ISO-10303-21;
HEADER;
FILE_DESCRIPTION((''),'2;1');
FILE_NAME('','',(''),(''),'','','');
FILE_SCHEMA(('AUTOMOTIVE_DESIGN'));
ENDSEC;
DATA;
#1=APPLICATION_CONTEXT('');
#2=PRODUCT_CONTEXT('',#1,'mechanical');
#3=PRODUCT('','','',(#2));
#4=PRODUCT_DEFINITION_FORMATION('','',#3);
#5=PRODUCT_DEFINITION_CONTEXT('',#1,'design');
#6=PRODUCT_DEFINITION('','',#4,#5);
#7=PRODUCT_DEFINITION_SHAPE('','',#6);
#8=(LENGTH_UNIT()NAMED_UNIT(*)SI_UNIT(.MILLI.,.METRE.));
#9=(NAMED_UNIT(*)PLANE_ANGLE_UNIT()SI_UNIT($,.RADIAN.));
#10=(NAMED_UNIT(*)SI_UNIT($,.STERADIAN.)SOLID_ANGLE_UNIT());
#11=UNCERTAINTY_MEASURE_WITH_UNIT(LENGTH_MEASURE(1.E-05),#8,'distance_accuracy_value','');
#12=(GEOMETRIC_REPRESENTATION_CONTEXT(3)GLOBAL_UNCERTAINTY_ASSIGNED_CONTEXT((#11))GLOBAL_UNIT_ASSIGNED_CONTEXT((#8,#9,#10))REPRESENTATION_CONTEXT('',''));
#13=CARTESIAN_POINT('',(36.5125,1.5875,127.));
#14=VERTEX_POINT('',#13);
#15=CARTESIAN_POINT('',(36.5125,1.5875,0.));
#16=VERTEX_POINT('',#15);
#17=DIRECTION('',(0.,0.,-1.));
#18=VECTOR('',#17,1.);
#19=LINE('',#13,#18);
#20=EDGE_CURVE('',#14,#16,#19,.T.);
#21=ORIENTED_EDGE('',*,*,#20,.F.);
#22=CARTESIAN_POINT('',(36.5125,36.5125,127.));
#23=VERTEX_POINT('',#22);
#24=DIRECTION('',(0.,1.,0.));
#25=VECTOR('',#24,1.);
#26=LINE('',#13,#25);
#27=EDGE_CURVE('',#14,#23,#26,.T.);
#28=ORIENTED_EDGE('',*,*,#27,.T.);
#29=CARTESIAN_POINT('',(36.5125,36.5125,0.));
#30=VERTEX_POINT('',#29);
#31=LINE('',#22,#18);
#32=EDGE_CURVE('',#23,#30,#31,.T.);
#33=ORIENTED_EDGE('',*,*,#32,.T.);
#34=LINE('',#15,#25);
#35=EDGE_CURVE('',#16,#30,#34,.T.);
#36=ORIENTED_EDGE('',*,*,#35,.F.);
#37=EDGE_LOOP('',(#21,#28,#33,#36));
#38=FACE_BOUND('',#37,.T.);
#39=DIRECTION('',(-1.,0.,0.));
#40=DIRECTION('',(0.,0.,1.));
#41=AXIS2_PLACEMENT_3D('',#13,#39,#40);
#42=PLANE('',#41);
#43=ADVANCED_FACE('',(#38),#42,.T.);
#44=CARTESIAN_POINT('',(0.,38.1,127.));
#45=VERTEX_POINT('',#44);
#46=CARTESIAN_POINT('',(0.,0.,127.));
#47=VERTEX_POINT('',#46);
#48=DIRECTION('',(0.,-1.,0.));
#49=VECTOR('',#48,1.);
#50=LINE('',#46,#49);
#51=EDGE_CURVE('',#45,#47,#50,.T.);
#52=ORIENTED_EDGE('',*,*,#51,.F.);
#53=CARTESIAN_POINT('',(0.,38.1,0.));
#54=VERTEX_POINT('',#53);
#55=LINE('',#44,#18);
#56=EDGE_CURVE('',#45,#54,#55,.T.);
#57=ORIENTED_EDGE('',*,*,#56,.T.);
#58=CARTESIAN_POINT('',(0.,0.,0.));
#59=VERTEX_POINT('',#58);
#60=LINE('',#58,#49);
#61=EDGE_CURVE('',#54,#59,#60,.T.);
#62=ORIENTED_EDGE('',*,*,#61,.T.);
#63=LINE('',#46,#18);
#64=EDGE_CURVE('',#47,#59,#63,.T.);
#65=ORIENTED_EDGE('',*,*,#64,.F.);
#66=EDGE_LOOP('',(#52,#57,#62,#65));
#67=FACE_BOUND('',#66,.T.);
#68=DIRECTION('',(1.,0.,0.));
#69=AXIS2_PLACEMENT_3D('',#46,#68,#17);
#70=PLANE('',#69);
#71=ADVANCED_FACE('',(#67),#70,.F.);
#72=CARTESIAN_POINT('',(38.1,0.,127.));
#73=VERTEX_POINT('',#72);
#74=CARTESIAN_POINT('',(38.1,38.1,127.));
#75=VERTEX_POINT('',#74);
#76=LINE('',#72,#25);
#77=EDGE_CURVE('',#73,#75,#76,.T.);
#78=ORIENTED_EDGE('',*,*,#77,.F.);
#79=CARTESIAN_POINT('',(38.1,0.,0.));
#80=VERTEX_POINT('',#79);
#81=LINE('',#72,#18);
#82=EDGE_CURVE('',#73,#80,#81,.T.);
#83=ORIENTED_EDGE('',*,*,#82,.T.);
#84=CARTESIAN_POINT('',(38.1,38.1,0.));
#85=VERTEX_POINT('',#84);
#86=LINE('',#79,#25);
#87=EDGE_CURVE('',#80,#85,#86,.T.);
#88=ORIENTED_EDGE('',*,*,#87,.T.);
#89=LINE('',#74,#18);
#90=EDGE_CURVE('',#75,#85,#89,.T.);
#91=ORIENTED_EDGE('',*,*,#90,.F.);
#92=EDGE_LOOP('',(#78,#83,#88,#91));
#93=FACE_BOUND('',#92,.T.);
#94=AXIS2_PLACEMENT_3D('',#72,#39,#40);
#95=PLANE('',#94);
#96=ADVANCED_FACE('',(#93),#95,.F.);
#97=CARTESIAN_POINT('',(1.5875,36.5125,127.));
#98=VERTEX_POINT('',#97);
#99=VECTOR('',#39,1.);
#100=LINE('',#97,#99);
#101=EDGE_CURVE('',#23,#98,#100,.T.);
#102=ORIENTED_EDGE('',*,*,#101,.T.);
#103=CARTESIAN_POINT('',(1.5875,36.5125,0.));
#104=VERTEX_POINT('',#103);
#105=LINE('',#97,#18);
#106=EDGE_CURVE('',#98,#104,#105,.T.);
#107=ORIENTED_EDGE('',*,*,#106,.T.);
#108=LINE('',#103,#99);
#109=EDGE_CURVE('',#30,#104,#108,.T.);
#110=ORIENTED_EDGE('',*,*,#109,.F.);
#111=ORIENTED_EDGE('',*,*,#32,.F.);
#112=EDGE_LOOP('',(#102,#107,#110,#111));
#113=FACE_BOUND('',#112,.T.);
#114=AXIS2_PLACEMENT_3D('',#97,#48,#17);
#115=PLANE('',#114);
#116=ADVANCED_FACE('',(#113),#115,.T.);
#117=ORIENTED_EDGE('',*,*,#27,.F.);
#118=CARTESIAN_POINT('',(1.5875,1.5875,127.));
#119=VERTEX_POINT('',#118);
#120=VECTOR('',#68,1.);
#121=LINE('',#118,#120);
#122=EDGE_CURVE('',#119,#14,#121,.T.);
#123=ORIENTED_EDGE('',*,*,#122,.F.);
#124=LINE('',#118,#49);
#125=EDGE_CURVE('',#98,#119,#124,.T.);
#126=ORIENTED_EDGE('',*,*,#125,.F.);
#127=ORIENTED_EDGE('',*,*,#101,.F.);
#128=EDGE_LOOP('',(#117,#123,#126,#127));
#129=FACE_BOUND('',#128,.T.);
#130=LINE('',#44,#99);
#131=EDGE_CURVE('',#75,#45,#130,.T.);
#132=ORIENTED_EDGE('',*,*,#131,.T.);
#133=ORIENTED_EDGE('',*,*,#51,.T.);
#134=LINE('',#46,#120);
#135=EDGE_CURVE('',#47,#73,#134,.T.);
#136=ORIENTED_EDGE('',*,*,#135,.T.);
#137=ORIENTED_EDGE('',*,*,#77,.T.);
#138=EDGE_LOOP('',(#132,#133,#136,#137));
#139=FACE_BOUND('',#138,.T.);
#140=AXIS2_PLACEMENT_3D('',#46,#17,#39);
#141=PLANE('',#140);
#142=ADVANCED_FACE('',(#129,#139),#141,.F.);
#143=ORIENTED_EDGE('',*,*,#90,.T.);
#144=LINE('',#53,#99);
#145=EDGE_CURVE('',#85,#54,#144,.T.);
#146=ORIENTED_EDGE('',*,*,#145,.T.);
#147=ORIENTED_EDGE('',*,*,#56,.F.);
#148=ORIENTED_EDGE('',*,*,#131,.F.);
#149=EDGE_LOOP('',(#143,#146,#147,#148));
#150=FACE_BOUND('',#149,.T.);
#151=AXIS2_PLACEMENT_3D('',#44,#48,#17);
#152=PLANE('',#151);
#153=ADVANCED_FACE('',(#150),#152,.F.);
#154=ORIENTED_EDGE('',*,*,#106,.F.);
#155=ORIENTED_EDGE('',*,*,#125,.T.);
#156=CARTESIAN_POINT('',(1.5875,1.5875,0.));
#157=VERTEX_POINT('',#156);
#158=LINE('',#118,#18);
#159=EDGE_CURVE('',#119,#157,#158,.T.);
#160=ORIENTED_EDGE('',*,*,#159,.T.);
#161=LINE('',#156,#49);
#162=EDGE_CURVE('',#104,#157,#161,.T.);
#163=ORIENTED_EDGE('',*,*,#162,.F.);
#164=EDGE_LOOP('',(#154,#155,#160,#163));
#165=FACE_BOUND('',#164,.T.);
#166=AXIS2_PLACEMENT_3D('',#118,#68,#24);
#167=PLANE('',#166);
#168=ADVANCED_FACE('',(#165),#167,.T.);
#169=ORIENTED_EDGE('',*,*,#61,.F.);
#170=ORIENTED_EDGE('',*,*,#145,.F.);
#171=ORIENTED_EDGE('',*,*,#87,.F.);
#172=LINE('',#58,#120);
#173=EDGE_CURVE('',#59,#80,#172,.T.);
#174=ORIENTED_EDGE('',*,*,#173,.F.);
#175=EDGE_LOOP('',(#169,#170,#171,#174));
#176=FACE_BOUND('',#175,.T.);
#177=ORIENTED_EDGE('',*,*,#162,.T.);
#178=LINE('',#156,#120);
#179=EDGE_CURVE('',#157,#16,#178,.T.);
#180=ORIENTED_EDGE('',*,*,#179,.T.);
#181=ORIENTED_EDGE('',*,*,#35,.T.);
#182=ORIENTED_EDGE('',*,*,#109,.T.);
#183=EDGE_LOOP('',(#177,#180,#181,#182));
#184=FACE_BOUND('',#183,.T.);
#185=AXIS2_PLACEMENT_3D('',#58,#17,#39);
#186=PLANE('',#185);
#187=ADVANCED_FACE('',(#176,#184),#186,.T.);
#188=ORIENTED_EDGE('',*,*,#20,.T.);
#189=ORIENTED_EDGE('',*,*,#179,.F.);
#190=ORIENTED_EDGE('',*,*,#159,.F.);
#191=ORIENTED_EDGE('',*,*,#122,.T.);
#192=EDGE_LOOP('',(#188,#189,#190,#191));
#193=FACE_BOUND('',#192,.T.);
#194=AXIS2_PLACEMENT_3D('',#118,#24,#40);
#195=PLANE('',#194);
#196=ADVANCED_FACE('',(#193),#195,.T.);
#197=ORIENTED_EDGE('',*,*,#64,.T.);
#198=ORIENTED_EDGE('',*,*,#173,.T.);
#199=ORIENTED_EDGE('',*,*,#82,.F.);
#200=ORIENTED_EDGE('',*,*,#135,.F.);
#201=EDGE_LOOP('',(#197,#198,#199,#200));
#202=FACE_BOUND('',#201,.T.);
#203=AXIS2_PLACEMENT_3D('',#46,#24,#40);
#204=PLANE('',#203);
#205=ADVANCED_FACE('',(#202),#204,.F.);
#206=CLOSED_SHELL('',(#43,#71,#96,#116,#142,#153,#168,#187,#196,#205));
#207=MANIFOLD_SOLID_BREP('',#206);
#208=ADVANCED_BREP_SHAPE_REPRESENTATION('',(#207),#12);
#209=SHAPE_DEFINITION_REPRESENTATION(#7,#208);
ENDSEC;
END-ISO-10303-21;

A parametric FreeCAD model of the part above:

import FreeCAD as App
import Part
import Sketcher

V = App.Vector
Q = App.Units.Quantity

doc = App.newDocument("Part")
params = doc.addObject("Spreadsheet::Sheet", "Params")
for row, (alias, value) in enumerate([
    ("sketch1_width", "1.5 in"),
    ("sketch1_width2", "1.375 in"),
    ("pad1_length", "5 in"),
], start=1):
    params.set(f"A{row}", alias)
    params.set(f"B{row}", "=" + value)
    params.setAlias(f"B{row}", alias)

body = doc.addObject("PartDesign::Body", "Body")

# Sketch on XY plane
sketch1 = body.newObject("Sketcher::SketchObject", "Sketch")
sketch1.AttachmentSupport = (doc.getObject("XY_Plane"), [""])
sketch1.MapMode = "FlatFace"
sketch1.addGeometry(Part.LineSegment(V(0, 38.1, 0), V(0, 0, 0)), False)
sketch1.addGeometry(Part.LineSegment(V(0, 0, 0), V(38.1, 0, 0)), False)
sketch1.addGeometry(Part.LineSegment(V(38.1, 0, 0), V(38.1, 38.1, 0)), False)
sketch1.addGeometry(Part.LineSegment(V(38.1, 38.1, 0), V(0, 38.1, 0)), False)
sketch1.addGeometry(Part.LineSegment(V(36.5125, 1.5875, 0), V(1.5875, 1.5875, 0)), False)
sketch1.addGeometry(Part.LineSegment(V(1.5875, 1.5875, 0), V(1.5875, 36.5125, 0)), False)
sketch1.addGeometry(Part.LineSegment(V(1.5875, 36.5125, 0), V(36.5125, 36.5125, 0)), False)
sketch1.addGeometry(Part.LineSegment(V(36.5125, 36.5125, 0), V(36.5125, 1.5875, 0)), False)
sketch1.addConstraint(Sketcher.Constraint("Coincident", 0, 2, 1, 1))
sketch1.addConstraint(Sketcher.Constraint("Coincident", 1, 2, 2, 1))
sketch1.addConstraint(Sketcher.Constraint("Coincident", 2, 2, 3, 1))
sketch1.addConstraint(Sketcher.Constraint("Coincident", 3, 2, 0, 1))
sketch1.addConstraint(Sketcher.Constraint("Coincident", 4, 2, 5, 1))
sketch1.addConstraint(Sketcher.Constraint("Coincident", 5, 2, 6, 1))
sketch1.addConstraint(Sketcher.Constraint("Coincident", 6, 2, 7, 1))
sketch1.addConstraint(Sketcher.Constraint("Coincident", 7, 2, 4, 1))
sketch1.addConstraint(Sketcher.Constraint("Vertical", 0))
sketch1.addConstraint(Sketcher.Constraint("Horizontal", 1))
sketch1.addConstraint(Sketcher.Constraint("Vertical", 2))
sketch1.addConstraint(Sketcher.Constraint("Horizontal", 3))
sketch1.addConstraint(Sketcher.Constraint("Horizontal", 4))
sketch1.addConstraint(Sketcher.Constraint("Vertical", 5))
sketch1.addConstraint(Sketcher.Constraint("Horizontal", 6))
sketch1.addConstraint(Sketcher.Constraint("Vertical", 7))
sketch1.addConstraint(Sketcher.Constraint("Coincident", 0, 2, -1, 1))
sketch1.addConstraint(Sketcher.Constraint("Equal", 3, 0))
sketch1.addConstraint(Sketcher.Constraint("Equal", 6, 5))
sketch1.addConstraint(Sketcher.Constraint("DistanceX", 1, 1, 1, 2, Q("1.5 in")))
sketch1.addConstraint(Sketcher.Constraint("DistanceX", 4, 2, 4, 1, Q("1.375 in")))
sketch1.addConstraint(Sketcher.Constraint("DistanceX", -1, 1, 4, 2, Q("0.0625 in")))
sketch1.addConstraint(Sketcher.Constraint("DistanceY", -1, 1, 4, 2, Q("0.0625 in")))
sketch1.setExpression("Constraints[19]", "Params.sketch1_width")
sketch1.setExpression("Constraints[20]", "Params.sketch1_width2")
pad1 = body.newObject("PartDesign::Pad", "Pad")
pad1.Profile = sketch1
pad1.setExpression("Length", "Params.pad1_length")

doc.recompute()
